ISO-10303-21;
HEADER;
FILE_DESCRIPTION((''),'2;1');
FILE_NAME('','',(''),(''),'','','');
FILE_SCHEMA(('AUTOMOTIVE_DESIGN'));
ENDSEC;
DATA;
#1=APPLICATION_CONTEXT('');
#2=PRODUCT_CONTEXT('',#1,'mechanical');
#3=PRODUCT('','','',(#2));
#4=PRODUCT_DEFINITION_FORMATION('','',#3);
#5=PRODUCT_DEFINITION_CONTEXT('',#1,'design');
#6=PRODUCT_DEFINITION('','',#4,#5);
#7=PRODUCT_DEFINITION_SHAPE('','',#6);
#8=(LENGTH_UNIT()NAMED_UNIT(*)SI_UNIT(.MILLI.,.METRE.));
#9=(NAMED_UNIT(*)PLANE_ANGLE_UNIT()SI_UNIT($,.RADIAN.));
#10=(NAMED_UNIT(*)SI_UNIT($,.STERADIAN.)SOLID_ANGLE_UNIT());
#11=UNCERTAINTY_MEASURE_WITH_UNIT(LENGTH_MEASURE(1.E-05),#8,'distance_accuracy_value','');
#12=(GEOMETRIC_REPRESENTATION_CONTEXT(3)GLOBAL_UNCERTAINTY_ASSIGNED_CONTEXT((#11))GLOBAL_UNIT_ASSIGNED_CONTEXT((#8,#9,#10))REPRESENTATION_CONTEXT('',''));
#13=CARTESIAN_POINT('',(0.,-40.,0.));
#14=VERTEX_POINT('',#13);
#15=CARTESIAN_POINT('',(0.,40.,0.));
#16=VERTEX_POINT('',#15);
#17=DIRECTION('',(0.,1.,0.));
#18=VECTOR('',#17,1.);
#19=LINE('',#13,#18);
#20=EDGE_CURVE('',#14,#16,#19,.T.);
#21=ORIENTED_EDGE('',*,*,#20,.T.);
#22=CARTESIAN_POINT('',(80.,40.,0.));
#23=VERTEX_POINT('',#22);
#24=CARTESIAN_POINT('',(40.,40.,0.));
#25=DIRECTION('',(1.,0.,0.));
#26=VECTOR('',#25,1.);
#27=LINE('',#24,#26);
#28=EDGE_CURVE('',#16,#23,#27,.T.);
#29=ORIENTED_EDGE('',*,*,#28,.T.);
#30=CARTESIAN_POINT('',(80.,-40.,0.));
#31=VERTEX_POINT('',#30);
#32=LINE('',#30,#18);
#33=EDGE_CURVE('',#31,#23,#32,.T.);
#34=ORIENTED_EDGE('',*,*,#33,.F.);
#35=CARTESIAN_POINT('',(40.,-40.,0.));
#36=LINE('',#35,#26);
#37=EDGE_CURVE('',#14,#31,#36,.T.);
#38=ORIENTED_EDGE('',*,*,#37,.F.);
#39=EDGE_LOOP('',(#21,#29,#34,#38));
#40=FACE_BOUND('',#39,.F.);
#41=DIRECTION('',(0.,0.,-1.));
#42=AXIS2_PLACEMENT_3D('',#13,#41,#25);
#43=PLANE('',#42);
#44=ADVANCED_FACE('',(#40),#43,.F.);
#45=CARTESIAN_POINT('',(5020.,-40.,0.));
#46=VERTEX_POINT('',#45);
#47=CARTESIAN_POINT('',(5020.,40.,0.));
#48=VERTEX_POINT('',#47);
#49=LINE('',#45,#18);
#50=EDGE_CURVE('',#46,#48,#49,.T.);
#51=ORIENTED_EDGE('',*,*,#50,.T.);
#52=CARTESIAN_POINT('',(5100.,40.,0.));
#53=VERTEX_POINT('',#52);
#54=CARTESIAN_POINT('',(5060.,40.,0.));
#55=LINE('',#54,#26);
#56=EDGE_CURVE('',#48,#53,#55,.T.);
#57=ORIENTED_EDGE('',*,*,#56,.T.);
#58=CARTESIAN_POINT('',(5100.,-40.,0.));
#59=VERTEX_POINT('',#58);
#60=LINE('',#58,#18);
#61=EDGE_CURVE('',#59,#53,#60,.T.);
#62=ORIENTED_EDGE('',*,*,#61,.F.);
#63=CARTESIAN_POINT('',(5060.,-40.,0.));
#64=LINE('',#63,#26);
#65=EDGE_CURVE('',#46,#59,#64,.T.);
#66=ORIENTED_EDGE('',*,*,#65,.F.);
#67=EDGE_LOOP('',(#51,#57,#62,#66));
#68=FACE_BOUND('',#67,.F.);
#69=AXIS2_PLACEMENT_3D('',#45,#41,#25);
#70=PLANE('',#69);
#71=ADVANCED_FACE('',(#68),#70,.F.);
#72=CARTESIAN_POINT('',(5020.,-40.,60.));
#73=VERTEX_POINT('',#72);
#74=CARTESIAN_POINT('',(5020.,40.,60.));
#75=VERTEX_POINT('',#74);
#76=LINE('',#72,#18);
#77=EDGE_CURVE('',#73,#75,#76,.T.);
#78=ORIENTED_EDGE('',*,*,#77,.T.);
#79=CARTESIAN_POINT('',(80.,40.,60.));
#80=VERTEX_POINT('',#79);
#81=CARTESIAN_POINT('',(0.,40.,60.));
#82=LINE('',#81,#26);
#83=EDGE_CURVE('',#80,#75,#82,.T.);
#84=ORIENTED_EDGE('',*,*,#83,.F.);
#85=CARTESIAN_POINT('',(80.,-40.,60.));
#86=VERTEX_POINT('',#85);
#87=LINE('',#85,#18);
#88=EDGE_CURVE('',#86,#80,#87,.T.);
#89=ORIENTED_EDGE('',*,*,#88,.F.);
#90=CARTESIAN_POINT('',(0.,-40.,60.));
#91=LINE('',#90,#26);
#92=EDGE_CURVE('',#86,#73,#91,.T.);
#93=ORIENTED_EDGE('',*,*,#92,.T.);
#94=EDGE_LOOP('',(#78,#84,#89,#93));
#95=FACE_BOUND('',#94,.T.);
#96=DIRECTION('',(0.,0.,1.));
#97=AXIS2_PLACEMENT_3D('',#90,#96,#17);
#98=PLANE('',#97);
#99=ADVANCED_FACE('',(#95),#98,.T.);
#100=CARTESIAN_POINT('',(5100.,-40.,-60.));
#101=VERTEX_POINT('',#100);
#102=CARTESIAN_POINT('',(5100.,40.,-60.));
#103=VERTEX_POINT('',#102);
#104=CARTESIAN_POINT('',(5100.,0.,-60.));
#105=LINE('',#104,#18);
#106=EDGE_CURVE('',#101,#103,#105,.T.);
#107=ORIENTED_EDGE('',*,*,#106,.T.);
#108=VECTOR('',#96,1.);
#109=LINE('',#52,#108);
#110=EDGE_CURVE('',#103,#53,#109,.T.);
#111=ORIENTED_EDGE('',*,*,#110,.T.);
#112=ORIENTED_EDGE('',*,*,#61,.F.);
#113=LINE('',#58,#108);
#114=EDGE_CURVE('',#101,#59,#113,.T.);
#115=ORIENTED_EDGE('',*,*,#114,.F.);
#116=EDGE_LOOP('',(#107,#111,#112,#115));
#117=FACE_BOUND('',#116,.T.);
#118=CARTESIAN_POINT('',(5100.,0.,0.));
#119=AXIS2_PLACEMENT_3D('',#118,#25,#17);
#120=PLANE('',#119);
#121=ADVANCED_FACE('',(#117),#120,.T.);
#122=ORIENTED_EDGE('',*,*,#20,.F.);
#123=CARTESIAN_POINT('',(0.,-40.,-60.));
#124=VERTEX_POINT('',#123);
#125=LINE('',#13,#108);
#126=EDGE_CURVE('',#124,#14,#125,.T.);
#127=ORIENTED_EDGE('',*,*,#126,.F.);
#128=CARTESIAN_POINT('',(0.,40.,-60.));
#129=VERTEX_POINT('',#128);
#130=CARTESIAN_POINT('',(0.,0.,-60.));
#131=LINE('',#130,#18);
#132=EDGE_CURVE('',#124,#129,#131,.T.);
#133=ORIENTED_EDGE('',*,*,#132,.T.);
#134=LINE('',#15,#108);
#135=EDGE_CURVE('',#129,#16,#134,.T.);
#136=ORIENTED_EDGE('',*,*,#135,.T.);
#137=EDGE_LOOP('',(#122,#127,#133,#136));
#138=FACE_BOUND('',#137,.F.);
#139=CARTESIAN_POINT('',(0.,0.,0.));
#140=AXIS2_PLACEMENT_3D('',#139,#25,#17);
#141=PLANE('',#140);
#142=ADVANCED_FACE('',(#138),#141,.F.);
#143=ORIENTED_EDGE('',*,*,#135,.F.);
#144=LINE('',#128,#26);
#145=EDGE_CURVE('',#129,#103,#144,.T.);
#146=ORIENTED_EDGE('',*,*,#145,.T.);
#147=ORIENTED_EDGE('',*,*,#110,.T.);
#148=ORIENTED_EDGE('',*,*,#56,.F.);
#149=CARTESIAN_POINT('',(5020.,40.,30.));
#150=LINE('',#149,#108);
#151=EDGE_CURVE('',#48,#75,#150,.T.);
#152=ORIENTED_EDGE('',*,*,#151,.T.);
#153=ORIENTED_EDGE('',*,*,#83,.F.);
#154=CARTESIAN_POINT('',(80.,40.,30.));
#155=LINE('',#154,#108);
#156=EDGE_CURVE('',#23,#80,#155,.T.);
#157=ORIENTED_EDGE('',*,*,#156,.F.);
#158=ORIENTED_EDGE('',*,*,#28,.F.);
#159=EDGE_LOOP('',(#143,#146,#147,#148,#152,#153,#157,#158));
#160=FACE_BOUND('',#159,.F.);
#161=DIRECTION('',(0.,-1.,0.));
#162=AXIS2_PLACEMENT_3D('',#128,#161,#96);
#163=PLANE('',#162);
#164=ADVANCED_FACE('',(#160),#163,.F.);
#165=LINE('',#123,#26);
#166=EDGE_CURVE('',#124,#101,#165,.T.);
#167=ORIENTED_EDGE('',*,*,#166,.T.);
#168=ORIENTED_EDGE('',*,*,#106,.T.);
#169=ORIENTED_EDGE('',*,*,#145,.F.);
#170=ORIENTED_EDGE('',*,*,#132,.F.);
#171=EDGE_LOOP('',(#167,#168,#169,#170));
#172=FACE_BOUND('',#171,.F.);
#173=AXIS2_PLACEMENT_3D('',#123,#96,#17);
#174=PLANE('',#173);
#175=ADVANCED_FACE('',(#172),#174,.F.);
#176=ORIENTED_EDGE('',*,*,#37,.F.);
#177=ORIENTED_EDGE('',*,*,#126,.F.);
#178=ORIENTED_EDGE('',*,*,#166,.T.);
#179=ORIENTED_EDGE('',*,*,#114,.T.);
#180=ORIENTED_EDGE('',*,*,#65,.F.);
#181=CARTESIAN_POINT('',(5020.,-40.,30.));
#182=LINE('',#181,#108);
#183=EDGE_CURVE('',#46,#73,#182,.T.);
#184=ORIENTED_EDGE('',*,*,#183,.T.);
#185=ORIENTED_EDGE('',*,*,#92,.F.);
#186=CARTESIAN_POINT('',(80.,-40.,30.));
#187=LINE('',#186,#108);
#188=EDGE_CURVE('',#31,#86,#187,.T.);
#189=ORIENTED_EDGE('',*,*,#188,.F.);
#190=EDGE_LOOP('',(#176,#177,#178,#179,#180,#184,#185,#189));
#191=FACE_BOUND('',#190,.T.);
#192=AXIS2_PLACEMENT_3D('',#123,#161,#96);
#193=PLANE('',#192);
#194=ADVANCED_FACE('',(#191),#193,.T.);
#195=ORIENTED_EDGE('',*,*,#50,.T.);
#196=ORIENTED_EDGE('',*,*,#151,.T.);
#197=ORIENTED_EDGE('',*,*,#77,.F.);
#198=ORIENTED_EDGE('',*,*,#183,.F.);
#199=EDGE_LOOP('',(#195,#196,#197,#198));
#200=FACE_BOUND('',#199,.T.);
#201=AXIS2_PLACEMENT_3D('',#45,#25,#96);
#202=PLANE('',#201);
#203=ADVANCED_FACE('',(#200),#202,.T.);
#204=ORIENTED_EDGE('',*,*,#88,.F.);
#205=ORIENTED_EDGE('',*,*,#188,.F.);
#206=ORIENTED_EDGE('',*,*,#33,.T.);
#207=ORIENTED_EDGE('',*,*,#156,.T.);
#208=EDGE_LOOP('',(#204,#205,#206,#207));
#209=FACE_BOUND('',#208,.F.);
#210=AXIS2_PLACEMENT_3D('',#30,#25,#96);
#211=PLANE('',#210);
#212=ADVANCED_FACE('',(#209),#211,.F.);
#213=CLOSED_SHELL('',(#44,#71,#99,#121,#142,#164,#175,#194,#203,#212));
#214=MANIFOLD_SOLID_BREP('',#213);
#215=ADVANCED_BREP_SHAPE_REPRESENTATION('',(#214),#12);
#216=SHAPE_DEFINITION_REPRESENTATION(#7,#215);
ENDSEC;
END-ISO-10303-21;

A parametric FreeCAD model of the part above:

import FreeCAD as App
import Part
import Sketcher


def add_polygon(sketch, points):
    """Adds a closed chain of lines whose ends are joined by coincident constraints."""
    first, n = sketch.GeometryCount, len(points)
    for a, b in zip(points, points[1:] + points[:1]):
        sketch.addGeometry(Part.LineSegment(App.Vector(*a, 0), App.Vector(*b, 0)), False)
    for i in range(n):
        sketch.addConstraint(Sketcher.Constraint("Coincident", first + i, 2, first + (i + 1) % n, 1))

doc = App.newDocument("Part")
body = doc.addObject("PartDesign::Body", "Body")

sketch1 = body.newObject("Sketcher::SketchObject", "Sketch")
sketch1.AttachmentSupport = (doc.getObject("YZ_Plane"), [""])
sketch1.MapMode = "FlatFace"
add_polygon(sketch1, [(-40, 60), (-40, -60), (40, -60), (40, 60)])
sketch1.addConstraint([
    Sketcher.Constraint("Vertical", 0),
    Sketcher.Constraint("Horizontal", 1),
    Sketcher.Constraint("Vertical", 2),
    Sketcher.Constraint("Horizontal", 3),
    Sketcher.Constraint("Symmetric", 0, 2, 2, 2, -1, 1),
    Sketcher.Constraint("DistanceX", 1, 1, 1, 2, 80.0),
    Sketcher.Constraint("DistanceY", 0, 2, 0, 1, 120.0),
])
pad1 = body.newObject("PartDesign::Pad", "Pad")
pad1.Profile = sketch1
pad1.Length = 5100

sketch2 = body.newObject("Sketcher::SketchObject", "Sketch001")
sketch2.AttachmentSupport = (doc.getObject("XZ_Plane"), [""])
sketch2.MapMode = "FlatFace"
sketch2.AttachmentOffset = App.Placement(App.Vector(0, 0, 40), App.Rotation())
add_polygon(sketch2, [(5020, 60), (5020, 0), (5100, 0), (5100, 60)])
add_polygon(sketch2, [(0, 60), (0, 0), (80, 0), (80, 60)])
sketch2.addConstraint([
    Sketcher.Constraint("Vertical", 0),
    Sketcher.Constraint("Horizontal", 1),
    Sketcher.Constraint("Vertical", 2),
    Sketcher.Constraint("Horizontal", 3),
    Sketcher.Constraint("Vertical", 4),
    Sketcher.Constraint("Horizontal", 5),
    Sketcher.Constraint("Vertical", 6),
    Sketcher.Constraint("Horizontal", 7),
    Sketcher.Constraint("Coincident", 4, 2, -1, 1),
    Sketcher.Constraint("PointOnObject", 0, 2, -1),
    Sketcher.Constraint("Horizontal", 3, 2, 6, 2),
    Sketcher.Constraint("Equal", 3, 5),
    Sketcher.Constraint("DistanceX", 1, 1, 1, 2, 80.0),
    Sketcher.Constraint("DistanceY", 0, 2, 0, 1, 60.0),
    Sketcher.Constraint("DistanceX", -1, 1, 0, 2, 5020.0),
])
pocket1 = body.newObject("PartDesign::Pocket", "Pocket")
pocket1.Profile = sketch2
pocket1.Type = "ThroughAll"

doc.recompute()
